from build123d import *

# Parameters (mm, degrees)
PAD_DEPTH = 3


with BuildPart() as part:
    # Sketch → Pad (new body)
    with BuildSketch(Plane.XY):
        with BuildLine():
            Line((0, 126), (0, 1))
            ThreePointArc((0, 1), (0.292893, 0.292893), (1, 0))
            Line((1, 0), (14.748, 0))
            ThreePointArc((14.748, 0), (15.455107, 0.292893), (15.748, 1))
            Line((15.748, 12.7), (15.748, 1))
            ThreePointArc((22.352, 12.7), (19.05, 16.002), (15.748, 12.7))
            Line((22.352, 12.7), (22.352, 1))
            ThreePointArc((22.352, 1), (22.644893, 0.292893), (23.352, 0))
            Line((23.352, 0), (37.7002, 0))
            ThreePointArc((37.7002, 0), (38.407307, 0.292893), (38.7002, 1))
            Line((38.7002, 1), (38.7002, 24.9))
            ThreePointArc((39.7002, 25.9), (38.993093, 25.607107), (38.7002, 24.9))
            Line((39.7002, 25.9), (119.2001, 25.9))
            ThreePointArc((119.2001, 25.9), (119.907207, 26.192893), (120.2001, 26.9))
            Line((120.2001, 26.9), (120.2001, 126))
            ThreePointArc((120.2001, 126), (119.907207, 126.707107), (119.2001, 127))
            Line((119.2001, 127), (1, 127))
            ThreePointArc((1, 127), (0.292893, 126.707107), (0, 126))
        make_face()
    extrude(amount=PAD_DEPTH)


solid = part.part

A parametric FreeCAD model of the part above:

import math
import FreeCAD as App
import Part
import Sketcher

V = App.Vector
Q = App.Units.Quantity

doc = App.newDocument("Part")
params = doc.addObject("Spreadsheet::Sheet", "Params")
for row, (alias, value) in enumerate([
    ("sketch1_radius", "0.999999 mm"),
    ("sketch1_height", "125 mm"),
    ("sketch1_height2", "11.7 mm"),
    ("sketch1_height3", "23.9 mm"),
    ("pad1_length", "3 mm"),
], start=1):
    params.set(f"A{row}", alias)
    params.set(f"B{row}", "=" + value)
    params.setAlias(f"B{row}", alias)

body = doc.addObject("PartDesign::Body", "Body")

# Sketch on XY plane
sketch1 = body.newObject("Sketcher::SketchObject", "Sketch")
sketch1.AttachmentSupport = (doc.getObject("XY_Plane"), [""])
sketch1.MapMode = "FlatFace"
sketch1.addGeometry(Part.LineSegment(V(0, 126, 0), V(0, 1, 0)), False)
sketch1.addGeometry(Part.ArcOfCircle(Part.Circle(V(0.999999, 0.999999, 0), V(0, 0, 1), 0.999999), math.radians(179.999957), math.radians(270.000043)), False)
sketch1.addGeometry(Part.LineSegment(V(1, 0, 0), V(14.748, 0, 0)), False)
sketch1.addGeometry(Part.ArcOfCircle(Part.Circle(V(14.748001, 0.999999, 0), V(0, 0, 1), 0.999999), math.radians(-90.000043), math.radians(0.000043)), False)
sketch1.addGeometry(Part.LineSegment(V(15.748, 1, 0), V(15.748, 12.7, 0)), False)
sketch1.addGeometry(Part.ArcOfCircle(Part.Circle(V(19.05, 12.7, 0), V(0, 0, 1), 3.302), math.radians(0), math.radians(180)), False)
sketch1.addGeometry(Part.LineSegment(V(22.352, 12.7, 0), V(22.352, 1, 0)), False)
sketch1.addGeometry(Part.ArcOfCircle(Part.Circle(V(23.351999, 0.999999, 0), V(0, 0, 1), 0.999999), math.radians(179.999957), math.radians(270.000043)), False)
sketch1.addGeometry(Part.LineSegment(V(23.352, 0, 0), V(37.7002, 0, 0)), False)
sketch1.addGeometry(Part.ArcOfCircle(Part.Circle(V(37.700201, 0.999999, 0), V(0, 0, 1), 0.999999), math.radians(-90.000043), math.radians(0.000043)), False)
sketch1.addGeometry(Part.LineSegment(V(38.7002, 1, 0), V(38.7002, 24.9, 0)), False)
sketch1.addGeometry(Part.ArcOfCircle(Part.Circle(V(39.700199, 24.900001, 0), V(0, 0, 1), 0.999999), math.radians(89.999957), math.radians(180.000043)), False)
sketch1.addGeometry(Part.LineSegment(V(39.7002, 25.9, 0), V(119.2001, 25.9, 0)), False)
sketch1.addGeometry(Part.ArcOfCircle(Part.Circle(V(119.200101, 26.899999, 0), V(0, 0, 1), 0.999999), math.radians(-90.000043), math.radians(0.000043)), False)
sketch1.addGeometry(Part.LineSegment(V(120.2001, 26.9, 0), V(120.2001, 126, 0)), False)
sketch1.addGeometry(Part.ArcOfCircle(Part.Circle(V(119.200101, 126.000001, 0), V(0, 0, 1), 0.999999), math.radians(-0.000043), math.radians(90.000043)), False)
sketch1.addGeometry(Part.LineSegment(V(119.2001, 127, 0), V(1, 127, 0)), False)
sketch1.addGeometry(Part.ArcOfCircle(Part.Circle(V(0.999999, 126.000001, 0), V(0, 0, 1), 0.999999), math.radians(89.999957), math.radians(180.000043)), False)
sketch1.addConstraint(Sketcher.Constraint("Tangent", 0, 2, 1, 1))
sketch1.addConstraint(Sketcher.Constraint("Tangent", 1, 2, 2, 1))
sketch1.addConstraint(Sketcher.Constraint("Tangent", 2, 2, 3, 1))
sketch1.addConstraint(Sketcher.Constraint("Tangent", 3, 2, 4, 1))
sketch1.addConstraint(Sketcher.Constraint("Tangent", 4, 2, 5, 2))
sketch1.addConstraint(Sketcher.Constraint("Tangent", 5, 1, 6, 1))
sketch1.addConstraint(Sketcher.Constraint("Tangent", 6, 2, 7, 1))
sketch1.addConstraint(Sketcher.Constraint("Tangent", 7, 2, 8, 1))
sketch1.addConstraint(Sketcher.Constraint("Tangent", 8, 2, 9, 1))
sketch1.addConstraint(Sketcher.Constraint("Tangent", 9, 2, 10, 1))
sketch1.addConstraint(Sketcher.Constraint("Tangent", 10, 2, 11, 2))
sketch1.addConstraint(Sketcher.Constraint("Tangent", 11, 1, 12, 1))
sketch1.addConstraint(Sketcher.Constraint("Tangent", 12, 2, 13, 1))
sketch1.addConstraint(Sketcher.Constraint("Tangent", 13, 2, 14, 1))
sketch1.addConstraint(Sketcher.Constraint("Tangent", 14, 2, 15, 1))
sketch1.addConstraint(Sketcher.Constraint("Tangent", 15, 2, 16, 1))
sketch1.addConstraint(Sketcher.Constraint("Tangent", 16, 2, 17, 1))
sketch1.addConstraint(Sketcher.Constraint("Tangent", 17, 2, 0, 1))
sketch1.addConstraint(Sketcher.Constraint("Vertical", 0))
sketch1.addConstraint(Sketcher.Constraint("Horizontal", 2))
sketch1.addConstraint(Sketcher.Constraint("Vertical", 4))
sketch1.addConstraint(Sketcher.Constraint("Vertical", 6))
sketch1.addConstraint(Sketcher.Constraint("Horizontal", 8))
sketch1.addConstraint(Sketcher.Constraint("Vertical", 10))
sketch1.addConstraint(Sketcher.Constraint("Horizontal", 12))
sketch1.addConstraint(Sketcher.Constraint("Vertical", 14))
sketch1.addConstraint(Sketcher.Constraint("Horizontal", 16))
sketch1.addConstraint(Sketcher.Constraint("Equal", 1, 3))
sketch1.addConstraint(Sketcher.Constraint("Equal", 3, 7))
sketch1.addConstraint(Sketcher.Constraint("Equal", 7, 9))
sketch1.addConstraint(Sketcher.Constraint("Equal", 9, 11))
sketch1.addConstraint(Sketcher.Constraint("Equal", 11, 13))
sketch1.addConstraint(Sketcher.Constraint("Equal", 13, 15))
sketch1.addConstraint(Sketcher.Constraint("Equal", 15, 17))
sketch1.addConstraint(Sketcher.Constraint("PointOnObject", 0, 2, -2))
sketch1.addConstraint(Sketcher.Constraint("PointOnObject", 1, 2, -1))
sketch1.addConstraint(Sketcher.Constraint("PointOnObject", 7, 2, -1))
sketch1.addConstraint(Sketcher.Constraint("Radius", 1, Q("0.999999 mm")))
sketch1.addConstraint(Sketcher.Constraint("DistanceY", 0, 2, 0, 1, Q("125 mm")))
sketch1.addConstraint(Sketcher.Constraint("DistanceY", 4, 1, 4, 2, Q("11.7 mm")))
sketch1.addConstraint(Sketcher.Constraint("DistanceY", 10, 1, 10, 2, Q("23.9 mm")))
sketch1.addConstraint(Sketcher.Constraint("Radius", 5, Q("3.302 mm")))
sketch1.addConstraint(Sketcher.Constraint("DistanceX", 2, 1, 2, 2, Q("13.748 mm")))
sketch1.addConstraint(Sketcher.Constraint("DistanceX", 8, 1, 8, 2, Q("14.3482 mm")))
sketch1.addConstraint(Sketcher.Constraint("DistanceX", 12, 1, 12, 2, Q("79.4999 mm")))
sketch1.setExpression("Constraints[37]", "Params.sketch1_radius")
sketch1.setExpression("Constraints[38]", "Params.sketch1_height")
sketch1.setExpression("Constraints[39]", "Params.sketch1_height2")
sketch1.setExpression("Constraints[40]", "Params.sketch1_height3")
pad1 = body.newObject("PartDesign::Pad", "Pad")
pad1.Profile = sketch1
pad1.setExpression("Length", "Params.pad1_length")

doc.recompute()
